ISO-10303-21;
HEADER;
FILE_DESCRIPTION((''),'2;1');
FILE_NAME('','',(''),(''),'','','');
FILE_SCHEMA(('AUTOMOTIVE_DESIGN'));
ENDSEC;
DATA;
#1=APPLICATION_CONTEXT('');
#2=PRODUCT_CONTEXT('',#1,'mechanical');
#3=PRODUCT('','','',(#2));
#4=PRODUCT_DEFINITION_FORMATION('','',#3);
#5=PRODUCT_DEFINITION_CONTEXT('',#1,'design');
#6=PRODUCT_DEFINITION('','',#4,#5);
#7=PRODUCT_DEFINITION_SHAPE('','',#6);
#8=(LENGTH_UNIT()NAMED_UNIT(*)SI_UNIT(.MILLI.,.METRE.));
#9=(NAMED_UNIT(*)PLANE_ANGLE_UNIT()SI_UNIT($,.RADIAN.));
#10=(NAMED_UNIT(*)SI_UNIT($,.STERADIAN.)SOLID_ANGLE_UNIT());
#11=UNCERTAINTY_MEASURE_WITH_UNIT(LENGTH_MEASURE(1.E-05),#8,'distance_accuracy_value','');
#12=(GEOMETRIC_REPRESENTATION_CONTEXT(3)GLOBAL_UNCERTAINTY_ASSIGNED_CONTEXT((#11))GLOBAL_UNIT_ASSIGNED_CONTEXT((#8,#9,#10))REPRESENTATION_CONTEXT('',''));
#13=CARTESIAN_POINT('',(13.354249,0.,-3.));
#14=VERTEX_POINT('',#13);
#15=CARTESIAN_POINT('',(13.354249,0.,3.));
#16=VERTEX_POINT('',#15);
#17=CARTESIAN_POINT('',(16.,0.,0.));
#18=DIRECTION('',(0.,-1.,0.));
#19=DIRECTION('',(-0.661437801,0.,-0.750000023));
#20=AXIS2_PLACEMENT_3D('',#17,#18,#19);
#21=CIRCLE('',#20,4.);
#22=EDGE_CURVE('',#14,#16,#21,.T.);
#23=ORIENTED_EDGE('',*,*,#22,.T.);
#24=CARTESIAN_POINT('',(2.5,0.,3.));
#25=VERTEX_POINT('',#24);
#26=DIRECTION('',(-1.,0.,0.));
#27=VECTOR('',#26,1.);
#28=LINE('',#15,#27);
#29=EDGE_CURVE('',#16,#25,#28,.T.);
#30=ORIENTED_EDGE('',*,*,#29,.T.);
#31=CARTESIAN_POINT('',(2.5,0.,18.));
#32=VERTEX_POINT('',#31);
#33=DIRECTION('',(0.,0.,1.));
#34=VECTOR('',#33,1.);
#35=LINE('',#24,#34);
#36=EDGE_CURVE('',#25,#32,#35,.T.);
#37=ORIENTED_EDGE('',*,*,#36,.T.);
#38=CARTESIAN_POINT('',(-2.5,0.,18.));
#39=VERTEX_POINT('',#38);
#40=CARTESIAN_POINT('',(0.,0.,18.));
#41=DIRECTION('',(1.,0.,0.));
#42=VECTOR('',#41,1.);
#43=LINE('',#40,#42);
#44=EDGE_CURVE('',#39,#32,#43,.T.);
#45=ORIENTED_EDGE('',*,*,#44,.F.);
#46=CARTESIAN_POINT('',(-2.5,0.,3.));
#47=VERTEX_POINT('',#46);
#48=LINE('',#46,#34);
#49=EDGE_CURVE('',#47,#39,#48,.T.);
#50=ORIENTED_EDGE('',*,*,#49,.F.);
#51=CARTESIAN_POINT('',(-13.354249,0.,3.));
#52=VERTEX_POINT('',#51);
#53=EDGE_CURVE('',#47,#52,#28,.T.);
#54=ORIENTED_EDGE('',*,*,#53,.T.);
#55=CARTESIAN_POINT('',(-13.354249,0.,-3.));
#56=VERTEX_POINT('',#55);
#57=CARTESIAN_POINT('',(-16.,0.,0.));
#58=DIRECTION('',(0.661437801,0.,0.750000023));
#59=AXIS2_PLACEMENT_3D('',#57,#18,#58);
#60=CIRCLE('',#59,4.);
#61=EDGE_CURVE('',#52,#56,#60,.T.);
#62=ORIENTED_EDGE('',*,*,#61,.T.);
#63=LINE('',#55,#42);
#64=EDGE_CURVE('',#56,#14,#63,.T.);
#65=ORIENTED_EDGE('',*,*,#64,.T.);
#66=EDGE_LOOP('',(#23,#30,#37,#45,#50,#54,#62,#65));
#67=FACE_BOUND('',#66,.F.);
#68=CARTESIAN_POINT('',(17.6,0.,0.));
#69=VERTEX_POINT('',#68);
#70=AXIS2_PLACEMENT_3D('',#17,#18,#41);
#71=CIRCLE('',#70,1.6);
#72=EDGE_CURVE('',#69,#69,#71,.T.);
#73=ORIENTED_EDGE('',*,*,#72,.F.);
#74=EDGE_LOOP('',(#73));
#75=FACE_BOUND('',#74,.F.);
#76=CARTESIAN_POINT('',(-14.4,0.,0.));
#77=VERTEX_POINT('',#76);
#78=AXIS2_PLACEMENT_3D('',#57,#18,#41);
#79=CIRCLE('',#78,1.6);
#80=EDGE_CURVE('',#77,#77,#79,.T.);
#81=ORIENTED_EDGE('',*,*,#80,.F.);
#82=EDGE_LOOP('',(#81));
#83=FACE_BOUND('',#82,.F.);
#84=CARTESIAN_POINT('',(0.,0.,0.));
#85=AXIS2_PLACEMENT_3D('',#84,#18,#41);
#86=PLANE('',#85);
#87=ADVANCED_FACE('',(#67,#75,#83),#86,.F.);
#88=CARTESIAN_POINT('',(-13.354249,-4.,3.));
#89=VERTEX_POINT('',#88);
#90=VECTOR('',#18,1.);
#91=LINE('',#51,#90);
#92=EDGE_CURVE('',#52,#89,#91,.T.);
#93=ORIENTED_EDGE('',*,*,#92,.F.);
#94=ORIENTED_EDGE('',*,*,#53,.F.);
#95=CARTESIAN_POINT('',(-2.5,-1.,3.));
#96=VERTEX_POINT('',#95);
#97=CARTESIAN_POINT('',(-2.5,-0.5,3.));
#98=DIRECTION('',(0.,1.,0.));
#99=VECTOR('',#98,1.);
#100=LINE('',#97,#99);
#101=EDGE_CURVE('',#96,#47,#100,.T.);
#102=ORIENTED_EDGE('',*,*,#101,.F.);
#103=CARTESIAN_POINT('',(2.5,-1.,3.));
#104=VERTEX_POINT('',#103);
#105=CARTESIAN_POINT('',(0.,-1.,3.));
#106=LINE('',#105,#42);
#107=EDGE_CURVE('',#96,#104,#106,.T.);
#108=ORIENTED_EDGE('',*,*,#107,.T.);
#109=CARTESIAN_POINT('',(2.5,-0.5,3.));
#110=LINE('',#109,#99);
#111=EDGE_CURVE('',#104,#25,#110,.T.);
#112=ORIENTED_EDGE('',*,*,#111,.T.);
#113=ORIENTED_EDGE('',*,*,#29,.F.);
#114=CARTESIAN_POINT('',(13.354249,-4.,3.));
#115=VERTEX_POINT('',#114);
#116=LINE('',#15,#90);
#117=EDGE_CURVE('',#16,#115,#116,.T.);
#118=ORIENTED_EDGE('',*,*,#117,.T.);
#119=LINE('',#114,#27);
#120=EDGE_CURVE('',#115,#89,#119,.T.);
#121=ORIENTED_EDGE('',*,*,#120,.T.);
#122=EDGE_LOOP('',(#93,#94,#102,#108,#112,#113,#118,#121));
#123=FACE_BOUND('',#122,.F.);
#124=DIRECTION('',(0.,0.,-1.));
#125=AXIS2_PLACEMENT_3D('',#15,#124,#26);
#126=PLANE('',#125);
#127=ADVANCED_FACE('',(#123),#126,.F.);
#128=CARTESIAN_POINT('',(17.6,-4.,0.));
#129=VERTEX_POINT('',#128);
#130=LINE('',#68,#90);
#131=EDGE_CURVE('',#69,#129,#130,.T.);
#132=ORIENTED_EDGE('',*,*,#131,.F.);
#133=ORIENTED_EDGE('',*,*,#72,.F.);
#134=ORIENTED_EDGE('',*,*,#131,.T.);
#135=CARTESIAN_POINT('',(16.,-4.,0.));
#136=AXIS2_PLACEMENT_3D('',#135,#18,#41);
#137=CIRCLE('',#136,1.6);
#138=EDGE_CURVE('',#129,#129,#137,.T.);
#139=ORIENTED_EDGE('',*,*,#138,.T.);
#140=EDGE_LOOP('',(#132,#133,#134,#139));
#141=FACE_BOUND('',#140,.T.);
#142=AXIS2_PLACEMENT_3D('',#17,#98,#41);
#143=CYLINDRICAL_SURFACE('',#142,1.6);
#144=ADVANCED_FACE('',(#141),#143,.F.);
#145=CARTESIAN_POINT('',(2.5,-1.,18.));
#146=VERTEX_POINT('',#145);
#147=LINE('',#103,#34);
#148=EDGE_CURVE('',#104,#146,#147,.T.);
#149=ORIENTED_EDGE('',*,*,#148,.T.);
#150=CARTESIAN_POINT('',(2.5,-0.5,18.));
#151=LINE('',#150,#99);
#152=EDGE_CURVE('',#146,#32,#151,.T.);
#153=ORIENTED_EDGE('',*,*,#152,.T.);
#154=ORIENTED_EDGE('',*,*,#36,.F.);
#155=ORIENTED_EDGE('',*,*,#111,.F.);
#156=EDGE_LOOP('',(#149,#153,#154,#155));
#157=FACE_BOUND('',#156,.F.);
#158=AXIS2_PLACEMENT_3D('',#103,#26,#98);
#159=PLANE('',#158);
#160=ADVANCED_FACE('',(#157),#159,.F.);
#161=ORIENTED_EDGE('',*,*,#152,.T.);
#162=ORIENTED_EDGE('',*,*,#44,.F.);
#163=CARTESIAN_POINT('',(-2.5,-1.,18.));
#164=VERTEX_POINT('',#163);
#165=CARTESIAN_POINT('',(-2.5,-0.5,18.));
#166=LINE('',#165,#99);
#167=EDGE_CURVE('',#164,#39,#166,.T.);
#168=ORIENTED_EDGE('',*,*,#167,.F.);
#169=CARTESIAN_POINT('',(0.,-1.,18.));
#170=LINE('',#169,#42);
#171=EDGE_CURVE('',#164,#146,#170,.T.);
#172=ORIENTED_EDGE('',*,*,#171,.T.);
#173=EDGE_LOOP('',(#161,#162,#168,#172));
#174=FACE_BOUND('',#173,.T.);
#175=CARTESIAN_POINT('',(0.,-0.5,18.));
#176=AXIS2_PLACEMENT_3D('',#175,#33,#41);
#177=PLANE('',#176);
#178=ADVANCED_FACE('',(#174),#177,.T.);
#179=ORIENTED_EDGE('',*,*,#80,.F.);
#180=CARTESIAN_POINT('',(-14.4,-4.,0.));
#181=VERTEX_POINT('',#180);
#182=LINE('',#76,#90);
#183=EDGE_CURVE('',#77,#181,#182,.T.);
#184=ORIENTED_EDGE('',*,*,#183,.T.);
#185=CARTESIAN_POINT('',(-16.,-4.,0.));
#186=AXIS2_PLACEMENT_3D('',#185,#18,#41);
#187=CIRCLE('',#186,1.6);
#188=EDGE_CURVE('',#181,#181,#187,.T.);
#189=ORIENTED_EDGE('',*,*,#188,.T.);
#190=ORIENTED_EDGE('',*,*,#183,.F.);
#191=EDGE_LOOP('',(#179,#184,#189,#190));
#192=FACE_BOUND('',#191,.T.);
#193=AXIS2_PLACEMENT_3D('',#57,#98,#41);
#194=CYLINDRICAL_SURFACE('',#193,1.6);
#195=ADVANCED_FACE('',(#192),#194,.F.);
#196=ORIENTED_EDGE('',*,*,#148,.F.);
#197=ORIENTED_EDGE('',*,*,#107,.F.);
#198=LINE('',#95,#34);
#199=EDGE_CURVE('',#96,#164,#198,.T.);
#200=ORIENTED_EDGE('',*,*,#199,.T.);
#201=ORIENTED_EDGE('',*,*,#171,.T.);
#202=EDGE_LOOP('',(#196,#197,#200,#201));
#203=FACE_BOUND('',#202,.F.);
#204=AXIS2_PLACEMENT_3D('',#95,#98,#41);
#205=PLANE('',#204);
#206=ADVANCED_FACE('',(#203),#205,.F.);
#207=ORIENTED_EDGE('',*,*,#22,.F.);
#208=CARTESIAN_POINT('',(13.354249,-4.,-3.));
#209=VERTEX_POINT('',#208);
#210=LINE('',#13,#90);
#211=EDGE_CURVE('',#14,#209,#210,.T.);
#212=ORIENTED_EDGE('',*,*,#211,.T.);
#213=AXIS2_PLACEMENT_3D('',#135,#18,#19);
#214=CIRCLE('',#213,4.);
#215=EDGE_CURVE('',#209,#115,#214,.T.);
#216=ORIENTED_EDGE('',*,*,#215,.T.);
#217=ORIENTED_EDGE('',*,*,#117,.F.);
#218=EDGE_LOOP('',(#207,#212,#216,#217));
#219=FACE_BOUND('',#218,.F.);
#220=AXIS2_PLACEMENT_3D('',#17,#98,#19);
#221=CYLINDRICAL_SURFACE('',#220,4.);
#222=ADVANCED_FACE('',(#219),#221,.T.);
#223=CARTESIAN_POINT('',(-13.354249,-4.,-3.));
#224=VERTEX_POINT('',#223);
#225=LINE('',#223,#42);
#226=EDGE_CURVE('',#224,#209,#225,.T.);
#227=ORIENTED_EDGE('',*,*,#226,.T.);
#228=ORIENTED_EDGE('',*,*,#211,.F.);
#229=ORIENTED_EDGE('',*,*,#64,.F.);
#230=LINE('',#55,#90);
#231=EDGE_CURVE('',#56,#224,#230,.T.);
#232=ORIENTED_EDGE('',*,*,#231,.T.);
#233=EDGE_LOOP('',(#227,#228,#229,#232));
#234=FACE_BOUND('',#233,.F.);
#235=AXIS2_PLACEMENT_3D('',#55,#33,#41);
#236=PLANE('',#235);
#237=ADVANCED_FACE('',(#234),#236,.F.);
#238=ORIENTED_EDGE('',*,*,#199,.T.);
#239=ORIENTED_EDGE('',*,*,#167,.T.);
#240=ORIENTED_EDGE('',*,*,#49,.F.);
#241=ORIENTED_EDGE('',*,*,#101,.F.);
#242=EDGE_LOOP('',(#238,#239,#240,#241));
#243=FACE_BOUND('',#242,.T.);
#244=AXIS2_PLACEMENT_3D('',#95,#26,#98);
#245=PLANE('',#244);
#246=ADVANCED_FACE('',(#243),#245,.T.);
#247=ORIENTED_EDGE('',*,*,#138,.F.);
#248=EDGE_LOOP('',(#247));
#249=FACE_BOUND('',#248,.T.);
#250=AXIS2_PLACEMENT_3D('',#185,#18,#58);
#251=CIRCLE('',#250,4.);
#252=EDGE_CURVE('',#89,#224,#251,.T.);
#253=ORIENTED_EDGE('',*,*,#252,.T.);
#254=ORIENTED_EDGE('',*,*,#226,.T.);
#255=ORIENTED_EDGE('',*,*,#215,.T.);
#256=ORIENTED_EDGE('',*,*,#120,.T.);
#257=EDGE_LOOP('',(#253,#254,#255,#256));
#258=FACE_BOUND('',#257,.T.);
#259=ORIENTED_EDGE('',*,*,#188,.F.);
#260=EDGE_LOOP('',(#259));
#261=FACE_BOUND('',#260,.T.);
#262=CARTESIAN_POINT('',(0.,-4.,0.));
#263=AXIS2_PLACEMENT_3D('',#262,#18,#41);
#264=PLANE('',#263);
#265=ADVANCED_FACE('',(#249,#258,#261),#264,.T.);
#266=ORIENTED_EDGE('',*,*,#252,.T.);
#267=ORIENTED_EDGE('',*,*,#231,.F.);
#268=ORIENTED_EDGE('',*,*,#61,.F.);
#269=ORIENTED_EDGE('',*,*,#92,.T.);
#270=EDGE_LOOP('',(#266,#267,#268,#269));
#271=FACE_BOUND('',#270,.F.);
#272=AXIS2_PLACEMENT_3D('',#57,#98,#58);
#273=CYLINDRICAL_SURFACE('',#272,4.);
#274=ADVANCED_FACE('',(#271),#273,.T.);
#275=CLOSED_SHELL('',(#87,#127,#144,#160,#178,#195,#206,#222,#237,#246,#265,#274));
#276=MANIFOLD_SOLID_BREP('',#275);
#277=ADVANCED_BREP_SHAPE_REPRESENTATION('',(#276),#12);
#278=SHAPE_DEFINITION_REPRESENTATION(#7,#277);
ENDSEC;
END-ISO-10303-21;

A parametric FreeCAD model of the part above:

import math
import FreeCAD as App
import Part
import Sketcher
from FreeCAD import Vector
Q = App.Units.Quantity


def add_polygon(sketch, points):
    """Adds a closed chain of lines whose ends are joined by coincident constraints."""
    first, n = sketch.GeometryCount, len(points)
    for a, b in zip(points, points[1:] + points[:1]):
        sketch.addGeometry(Part.LineSegment(App.Vector(*a, 0), App.Vector(*b, 0)), False)
    for i in range(n):
        sketch.addConstraint(Sketcher.Constraint("Coincident", first + i, 2, first + (i + 1) % n, 1))

doc = App.newDocument("Part")
body = doc.addObject("PartDesign::Body", "Body")

# Sketch on XZ plane
sketch1 = doc.addObject("Sketcher::SketchObject", "Sketch")
body.addObject(sketch1)
sketch1.AttachmentSupport = (doc.XZ_Plane, [""])
sketch1.MapMode = "FlatFace"
sketch1.addGeometry([
    Part.LineSegment(Vector(-13.4, -3, 0), Vector(13.4, -3, 0)),  # 0
    Part.ArcOfCircle(Part.Circle(Vector(16, 0, 0), Vector(0, 0, 1), 4), math.radians(-131), math.radians(131)),  # 1
    Part.LineSegment(Vector(13.4, 3, 0), Vector(-13.4, 3, 0)),  # 2
    Part.ArcOfCircle(Part.Circle(Vector(-16, 0, 0), Vector(0, 0, 1), 4), math.radians(49), math.radians(311)),  # 3
    Part.Circle(Vector(-16, 0, 0), Vector(0, 0, 1), 1.6),  # 4
    Part.Circle(Vector(16, 0, 0), Vector(0, 0, 1), 1.6),  # 5
], False)
sketch1.addConstraint([
    Sketcher.Constraint("Coincident", 0, 2, 1, 1),
    Sketcher.Constraint("Coincident", 1, 2, 2, 1),
    Sketcher.Constraint("Coincident", 2, 2, 3, 1),
    Sketcher.Constraint("Coincident", 3, 2, 0, 1),
    Sketcher.Constraint("Horizontal", 0),
    Sketcher.Constraint("Horizontal", 2),
    Sketcher.Constraint("Coincident", 4, 3, 3, 3),
    Sketcher.Constraint("Coincident", 5, 3, 1, 3),
    Sketcher.Constraint("Equal", 1, 3),
    Sketcher.Constraint("Equal", 4, 5),
    Sketcher.Constraint("Symmetric", 1, 3, 3, 3, -1, 1),
    Sketcher.Constraint("Symmetric", 0, 2, 1, 2, -1),
    Sketcher.Constraint("Radius", 1, Q("4 mm")),
    Sketcher.Constraint("Diameter", 4, Q("3.2 mm")),
    Sketcher.Constraint("DistanceX", -1, 1, 1, 3, Q("16 mm")),
    Sketcher.Constraint("DistanceY", 0, 2, -1, 1, Q("3 mm")),
])
pad1 = doc.addObject("PartDesign::Pad", "Pad")
body.addObject(pad1)
pad1.Profile = sketch1
pad1.Length = 4

# Sketch on XY plane
sketch2 = doc.addObject("Sketcher::SketchObject", "Sketch001")
body.addObject(sketch2)
sketch2.AttachmentSupport = (doc.XY_Plane, [""])
sketch2.MapMode = "FlatFace"
sketch2.AttachmentOffset = App.Placement(Vector(0, 0, 3), App.Rotation())
add_polygon(sketch2, [(-2.5, 0), (-2.5, -1), (2.5, -1), (2.5, 0)])  # lines 0-3
sketch2.addConstraint([
    Sketcher.Constraint("Vertical", 0),
    Sketcher.Constraint("Horizontal", 1),
    Sketcher.Constraint("Vertical", 2),
    Sketcher.Constraint("Horizontal", 3),
    Sketcher.Constraint("Symmetric", 2, 2, 3, 2, -1, 1),
    Sketcher.Constraint("DistanceX", 1, 1, 1, 2, Q("5 mm")),
    Sketcher.Constraint("DistanceY", 0, 2, 0, 1, Q("1 mm")),
])
pad2 = doc.addObject("PartDesign::Pad", "Pad001")
body.addObject(pad2)
pad2.Profile = sketch2
pad2.Length = 15

doc.recompute()
